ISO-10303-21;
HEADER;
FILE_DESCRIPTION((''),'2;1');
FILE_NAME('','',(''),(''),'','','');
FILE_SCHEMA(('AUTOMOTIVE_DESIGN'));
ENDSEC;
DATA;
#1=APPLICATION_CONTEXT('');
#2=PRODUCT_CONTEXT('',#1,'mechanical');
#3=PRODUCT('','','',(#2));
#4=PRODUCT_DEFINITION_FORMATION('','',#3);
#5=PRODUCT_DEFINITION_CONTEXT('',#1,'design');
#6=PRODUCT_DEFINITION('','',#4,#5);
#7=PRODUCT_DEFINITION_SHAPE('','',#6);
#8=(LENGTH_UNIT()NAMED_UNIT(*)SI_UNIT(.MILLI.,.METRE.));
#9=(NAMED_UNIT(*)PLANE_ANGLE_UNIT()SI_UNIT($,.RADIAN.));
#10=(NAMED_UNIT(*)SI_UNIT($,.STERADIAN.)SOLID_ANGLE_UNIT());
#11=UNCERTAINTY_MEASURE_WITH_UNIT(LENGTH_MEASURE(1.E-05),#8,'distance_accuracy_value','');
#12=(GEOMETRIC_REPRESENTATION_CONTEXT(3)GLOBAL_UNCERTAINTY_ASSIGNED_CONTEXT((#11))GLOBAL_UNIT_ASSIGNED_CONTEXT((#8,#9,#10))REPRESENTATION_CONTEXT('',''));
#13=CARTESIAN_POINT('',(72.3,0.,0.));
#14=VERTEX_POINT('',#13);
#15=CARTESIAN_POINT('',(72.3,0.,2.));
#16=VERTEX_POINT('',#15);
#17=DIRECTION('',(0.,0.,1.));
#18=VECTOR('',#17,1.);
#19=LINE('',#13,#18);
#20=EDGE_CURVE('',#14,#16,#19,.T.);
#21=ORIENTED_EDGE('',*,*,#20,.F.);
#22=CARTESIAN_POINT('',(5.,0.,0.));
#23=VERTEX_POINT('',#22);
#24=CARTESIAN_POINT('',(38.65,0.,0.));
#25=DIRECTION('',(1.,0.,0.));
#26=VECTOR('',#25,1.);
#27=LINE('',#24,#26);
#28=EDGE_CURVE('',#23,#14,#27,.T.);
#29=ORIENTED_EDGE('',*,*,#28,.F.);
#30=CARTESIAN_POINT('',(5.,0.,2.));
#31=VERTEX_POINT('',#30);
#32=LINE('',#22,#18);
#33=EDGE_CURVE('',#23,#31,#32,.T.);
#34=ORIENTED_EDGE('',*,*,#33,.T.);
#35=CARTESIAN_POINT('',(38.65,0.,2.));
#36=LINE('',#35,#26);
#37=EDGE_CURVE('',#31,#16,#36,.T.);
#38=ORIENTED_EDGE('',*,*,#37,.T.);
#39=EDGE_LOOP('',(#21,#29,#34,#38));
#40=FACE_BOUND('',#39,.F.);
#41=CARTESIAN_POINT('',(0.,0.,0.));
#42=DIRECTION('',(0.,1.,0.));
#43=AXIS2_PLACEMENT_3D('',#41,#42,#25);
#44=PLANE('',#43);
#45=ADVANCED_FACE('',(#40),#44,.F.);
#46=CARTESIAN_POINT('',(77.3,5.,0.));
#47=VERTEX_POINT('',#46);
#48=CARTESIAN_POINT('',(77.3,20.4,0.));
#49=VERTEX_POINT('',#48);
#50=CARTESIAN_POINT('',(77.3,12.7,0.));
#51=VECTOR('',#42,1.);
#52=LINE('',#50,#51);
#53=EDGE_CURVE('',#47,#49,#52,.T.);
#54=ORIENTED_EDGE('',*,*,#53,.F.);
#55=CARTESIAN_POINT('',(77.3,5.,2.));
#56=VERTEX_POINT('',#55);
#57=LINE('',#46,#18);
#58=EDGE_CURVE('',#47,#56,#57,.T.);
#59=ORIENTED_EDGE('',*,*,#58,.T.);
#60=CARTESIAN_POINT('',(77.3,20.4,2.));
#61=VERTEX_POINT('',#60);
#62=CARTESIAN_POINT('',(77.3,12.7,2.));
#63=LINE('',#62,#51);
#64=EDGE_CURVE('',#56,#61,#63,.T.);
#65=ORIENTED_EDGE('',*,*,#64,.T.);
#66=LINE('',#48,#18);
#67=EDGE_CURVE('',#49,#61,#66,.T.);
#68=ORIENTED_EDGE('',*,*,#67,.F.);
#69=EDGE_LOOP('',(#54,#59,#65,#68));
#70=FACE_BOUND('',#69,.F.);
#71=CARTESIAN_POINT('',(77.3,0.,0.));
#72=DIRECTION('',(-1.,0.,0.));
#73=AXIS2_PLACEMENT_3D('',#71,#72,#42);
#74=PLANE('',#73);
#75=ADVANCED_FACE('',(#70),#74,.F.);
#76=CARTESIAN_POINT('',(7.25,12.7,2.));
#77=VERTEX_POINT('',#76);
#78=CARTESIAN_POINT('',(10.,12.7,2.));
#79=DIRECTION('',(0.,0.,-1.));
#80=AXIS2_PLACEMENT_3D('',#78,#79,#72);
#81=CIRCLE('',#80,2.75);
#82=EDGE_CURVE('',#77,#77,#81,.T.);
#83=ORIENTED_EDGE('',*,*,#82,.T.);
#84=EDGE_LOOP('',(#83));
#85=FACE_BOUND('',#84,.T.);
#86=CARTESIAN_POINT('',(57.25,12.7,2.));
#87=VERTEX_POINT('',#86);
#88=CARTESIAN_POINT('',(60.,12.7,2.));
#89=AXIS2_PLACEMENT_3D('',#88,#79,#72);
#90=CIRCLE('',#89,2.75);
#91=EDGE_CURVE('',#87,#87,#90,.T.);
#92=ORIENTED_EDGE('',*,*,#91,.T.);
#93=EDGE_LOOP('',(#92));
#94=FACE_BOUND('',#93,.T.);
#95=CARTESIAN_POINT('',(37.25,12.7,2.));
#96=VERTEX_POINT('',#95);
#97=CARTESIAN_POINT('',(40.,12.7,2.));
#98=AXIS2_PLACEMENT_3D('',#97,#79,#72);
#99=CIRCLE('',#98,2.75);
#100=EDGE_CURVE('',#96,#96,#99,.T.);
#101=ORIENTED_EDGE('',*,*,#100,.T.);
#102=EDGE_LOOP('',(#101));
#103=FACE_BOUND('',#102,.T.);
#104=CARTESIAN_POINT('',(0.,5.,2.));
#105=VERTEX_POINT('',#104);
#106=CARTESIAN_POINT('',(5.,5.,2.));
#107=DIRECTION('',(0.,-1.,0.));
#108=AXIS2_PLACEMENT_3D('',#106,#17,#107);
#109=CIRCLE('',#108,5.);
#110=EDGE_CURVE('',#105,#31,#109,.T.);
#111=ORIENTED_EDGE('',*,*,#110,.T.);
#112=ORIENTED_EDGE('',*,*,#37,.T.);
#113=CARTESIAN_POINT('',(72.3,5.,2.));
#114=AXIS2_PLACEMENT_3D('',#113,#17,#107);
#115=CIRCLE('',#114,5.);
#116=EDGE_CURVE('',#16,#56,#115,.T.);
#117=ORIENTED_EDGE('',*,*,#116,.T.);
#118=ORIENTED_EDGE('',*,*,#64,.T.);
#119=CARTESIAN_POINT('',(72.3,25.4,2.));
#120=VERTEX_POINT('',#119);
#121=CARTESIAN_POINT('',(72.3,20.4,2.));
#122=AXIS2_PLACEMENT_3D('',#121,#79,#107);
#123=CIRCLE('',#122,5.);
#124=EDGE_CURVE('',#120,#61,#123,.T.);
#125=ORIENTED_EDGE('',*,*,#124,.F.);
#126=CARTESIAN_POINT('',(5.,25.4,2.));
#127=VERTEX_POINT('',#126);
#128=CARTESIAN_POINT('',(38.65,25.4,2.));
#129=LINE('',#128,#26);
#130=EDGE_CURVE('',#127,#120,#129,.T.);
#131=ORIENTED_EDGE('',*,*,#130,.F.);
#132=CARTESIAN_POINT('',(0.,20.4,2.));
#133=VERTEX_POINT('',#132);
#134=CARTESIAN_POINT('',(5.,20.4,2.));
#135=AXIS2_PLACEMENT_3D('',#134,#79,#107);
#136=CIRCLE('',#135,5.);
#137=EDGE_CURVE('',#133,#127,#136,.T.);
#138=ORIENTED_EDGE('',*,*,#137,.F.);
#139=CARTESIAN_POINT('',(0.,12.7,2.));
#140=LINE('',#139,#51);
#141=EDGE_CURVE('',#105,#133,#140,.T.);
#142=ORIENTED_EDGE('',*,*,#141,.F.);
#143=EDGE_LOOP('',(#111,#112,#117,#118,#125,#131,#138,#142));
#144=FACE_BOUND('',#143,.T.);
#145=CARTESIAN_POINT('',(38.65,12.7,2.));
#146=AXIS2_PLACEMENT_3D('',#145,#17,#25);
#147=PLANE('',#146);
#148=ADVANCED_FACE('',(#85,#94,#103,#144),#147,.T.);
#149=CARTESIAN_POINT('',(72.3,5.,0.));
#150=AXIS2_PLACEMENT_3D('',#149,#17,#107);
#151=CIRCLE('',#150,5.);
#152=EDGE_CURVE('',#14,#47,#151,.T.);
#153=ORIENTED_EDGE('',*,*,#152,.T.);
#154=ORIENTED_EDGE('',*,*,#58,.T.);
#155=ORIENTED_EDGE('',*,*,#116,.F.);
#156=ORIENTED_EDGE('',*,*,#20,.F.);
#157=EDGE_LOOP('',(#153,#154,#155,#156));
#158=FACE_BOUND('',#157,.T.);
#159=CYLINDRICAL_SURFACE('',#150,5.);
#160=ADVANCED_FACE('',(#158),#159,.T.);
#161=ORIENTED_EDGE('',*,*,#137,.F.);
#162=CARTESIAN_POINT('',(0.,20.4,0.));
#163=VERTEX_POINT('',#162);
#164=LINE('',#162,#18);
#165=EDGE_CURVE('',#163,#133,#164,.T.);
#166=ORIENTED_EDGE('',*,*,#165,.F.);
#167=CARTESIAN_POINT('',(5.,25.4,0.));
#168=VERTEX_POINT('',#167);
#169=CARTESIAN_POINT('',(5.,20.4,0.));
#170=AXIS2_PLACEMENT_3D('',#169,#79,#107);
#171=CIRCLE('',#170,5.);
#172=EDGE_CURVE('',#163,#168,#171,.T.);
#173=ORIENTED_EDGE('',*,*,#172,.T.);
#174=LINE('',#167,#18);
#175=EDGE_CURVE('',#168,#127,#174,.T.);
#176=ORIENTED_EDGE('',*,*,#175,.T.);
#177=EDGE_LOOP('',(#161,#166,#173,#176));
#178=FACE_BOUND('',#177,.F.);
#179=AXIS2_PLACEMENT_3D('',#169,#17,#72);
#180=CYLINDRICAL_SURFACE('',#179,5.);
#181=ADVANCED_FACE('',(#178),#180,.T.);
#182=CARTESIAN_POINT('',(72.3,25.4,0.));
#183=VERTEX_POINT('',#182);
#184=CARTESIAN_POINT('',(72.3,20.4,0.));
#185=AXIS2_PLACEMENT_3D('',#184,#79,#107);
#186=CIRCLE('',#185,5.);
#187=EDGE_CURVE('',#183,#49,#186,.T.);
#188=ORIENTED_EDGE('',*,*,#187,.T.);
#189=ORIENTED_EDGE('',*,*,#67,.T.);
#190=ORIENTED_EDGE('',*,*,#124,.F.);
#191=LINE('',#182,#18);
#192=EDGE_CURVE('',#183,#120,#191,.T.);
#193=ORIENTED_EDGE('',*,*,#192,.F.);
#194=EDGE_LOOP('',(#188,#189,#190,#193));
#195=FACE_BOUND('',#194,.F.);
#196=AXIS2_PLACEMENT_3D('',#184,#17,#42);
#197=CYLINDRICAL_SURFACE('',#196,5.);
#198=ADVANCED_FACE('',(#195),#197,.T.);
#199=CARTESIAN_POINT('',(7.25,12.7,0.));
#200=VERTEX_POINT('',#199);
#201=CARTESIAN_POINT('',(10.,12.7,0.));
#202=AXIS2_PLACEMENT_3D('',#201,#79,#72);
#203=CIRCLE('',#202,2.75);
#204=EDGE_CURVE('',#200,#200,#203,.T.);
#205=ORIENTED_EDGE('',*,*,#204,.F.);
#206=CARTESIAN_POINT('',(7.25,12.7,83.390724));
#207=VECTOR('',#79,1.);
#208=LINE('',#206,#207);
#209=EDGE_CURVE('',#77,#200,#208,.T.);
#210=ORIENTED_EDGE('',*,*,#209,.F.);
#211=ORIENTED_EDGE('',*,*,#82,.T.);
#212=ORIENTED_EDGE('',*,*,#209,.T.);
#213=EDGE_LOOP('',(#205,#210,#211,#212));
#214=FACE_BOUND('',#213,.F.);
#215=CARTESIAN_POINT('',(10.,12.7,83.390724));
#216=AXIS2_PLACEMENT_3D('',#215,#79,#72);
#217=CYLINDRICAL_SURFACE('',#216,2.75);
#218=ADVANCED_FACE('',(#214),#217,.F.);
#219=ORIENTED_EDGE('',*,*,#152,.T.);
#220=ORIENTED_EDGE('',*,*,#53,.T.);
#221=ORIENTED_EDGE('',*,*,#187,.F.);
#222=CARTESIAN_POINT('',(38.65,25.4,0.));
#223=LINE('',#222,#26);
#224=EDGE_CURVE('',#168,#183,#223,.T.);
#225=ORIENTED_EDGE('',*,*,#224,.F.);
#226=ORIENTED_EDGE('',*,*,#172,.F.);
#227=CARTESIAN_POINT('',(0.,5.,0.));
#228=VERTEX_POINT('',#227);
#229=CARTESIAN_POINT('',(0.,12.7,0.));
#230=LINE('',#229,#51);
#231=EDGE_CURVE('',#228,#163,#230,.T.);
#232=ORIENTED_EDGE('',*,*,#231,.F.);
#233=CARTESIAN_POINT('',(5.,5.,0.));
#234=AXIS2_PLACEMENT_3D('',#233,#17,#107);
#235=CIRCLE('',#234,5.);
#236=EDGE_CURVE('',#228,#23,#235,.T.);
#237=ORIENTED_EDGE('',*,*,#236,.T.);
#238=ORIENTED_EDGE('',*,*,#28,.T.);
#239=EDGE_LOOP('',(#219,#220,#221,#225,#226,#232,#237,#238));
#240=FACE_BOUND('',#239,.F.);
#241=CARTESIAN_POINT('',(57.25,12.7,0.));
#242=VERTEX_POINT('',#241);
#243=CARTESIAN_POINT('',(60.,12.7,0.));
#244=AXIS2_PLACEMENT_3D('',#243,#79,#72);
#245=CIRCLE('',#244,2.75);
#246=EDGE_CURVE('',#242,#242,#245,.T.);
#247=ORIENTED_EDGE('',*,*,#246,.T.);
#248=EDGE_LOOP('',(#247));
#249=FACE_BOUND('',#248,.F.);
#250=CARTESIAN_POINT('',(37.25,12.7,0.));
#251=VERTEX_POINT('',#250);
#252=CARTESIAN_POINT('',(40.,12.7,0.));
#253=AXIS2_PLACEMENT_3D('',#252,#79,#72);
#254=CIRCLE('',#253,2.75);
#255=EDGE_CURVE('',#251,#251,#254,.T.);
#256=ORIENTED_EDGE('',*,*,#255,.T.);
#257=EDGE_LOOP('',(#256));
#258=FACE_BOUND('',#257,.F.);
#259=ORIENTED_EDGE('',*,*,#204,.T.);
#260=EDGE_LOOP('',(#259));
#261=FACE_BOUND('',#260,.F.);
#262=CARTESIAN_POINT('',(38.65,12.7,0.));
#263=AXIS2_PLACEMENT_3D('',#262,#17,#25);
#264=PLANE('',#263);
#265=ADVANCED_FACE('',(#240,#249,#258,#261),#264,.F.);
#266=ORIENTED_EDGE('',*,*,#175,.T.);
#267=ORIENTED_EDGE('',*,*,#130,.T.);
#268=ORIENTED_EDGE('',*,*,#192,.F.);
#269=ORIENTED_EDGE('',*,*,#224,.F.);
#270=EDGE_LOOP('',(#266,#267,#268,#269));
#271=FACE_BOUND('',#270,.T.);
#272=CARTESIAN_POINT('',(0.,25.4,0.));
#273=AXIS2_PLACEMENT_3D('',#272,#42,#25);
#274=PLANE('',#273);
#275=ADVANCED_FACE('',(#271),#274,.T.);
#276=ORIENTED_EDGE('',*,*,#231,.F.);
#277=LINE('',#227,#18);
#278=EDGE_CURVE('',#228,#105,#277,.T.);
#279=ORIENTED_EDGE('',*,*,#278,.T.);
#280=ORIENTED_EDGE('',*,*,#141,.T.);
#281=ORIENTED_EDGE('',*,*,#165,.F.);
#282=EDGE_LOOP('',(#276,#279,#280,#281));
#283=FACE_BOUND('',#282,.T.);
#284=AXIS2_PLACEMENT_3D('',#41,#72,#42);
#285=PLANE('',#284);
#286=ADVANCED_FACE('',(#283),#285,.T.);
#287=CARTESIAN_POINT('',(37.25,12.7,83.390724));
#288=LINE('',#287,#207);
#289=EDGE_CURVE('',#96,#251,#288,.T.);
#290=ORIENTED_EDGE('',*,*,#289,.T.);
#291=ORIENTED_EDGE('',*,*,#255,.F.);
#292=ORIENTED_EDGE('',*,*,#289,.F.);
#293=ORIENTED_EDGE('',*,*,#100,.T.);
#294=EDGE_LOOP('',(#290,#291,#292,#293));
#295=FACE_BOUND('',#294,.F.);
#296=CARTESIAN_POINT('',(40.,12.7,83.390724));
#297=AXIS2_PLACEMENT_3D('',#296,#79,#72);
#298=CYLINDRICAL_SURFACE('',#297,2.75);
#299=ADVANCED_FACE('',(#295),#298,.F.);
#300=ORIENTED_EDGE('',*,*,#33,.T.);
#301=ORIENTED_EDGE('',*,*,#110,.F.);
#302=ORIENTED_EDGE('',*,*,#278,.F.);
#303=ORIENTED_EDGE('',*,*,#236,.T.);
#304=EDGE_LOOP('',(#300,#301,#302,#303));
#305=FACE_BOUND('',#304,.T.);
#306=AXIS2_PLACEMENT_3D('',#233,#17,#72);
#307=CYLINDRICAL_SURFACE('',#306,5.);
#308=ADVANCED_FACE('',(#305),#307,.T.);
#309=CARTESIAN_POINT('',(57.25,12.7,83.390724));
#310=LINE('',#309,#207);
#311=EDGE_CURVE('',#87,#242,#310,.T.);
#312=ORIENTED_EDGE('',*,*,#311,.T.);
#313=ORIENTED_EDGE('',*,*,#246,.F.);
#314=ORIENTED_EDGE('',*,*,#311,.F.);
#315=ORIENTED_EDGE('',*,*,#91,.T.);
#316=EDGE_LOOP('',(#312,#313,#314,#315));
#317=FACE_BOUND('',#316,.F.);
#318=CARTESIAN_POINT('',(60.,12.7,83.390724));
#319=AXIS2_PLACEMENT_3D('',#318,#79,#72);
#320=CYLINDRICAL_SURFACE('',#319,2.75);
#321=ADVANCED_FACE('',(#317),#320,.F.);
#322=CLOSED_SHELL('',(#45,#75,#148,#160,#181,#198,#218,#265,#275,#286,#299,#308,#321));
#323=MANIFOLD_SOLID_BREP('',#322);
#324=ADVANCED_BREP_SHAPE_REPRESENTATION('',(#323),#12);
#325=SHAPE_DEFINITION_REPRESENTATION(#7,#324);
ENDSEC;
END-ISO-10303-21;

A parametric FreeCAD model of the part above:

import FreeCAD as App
import Part
import Sketcher
Q = App.Units.Quantity


def edges_at(feature, points):
    """Names of the edges that pass closest to the given points."""
    edges = feature.Shape.Edges
    near = lambda p: min(range(len(edges)), key=lambda i: edges[i].distToShape(Part.Vertex(*p))[0])
    return sorted({f"Edge{near(p) + 1}" for p in points})


def add_polygon(sketch, points):
    """Adds a closed chain of lines whose ends are joined by coincident constraints."""
    first, n = sketch.GeometryCount, len(points)
    for a, b in zip(points, points[1:] + points[:1]):
        sketch.addGeometry(Part.LineSegment(App.Vector(*a, 0), App.Vector(*b, 0)), False)
    for i in range(n):
        sketch.addConstraint(Sketcher.Constraint("Coincident", first + i, 2, first + (i + 1) % n, 1))

doc = App.newDocument("Part")
body = doc.addObject("PartDesign::Body", "Body")

sketch1 = body.newObject("Sketcher::SketchObject", "Sketch")
sketch1.AttachmentSupport = (doc.getObject("XY_Plane"), [""])
sketch1.MapMode = "FlatFace"
add_polygon(sketch1, [(0, 25.4), (0, 0), (77.3, 0), (77.3, 25.4)])
sketch1.addConstraint(Sketcher.Constraint("Vertical", 0))
sketch1.addConstraint(Sketcher.Constraint("Horizontal", 1))
sketch1.addConstraint(Sketcher.Constraint("Vertical", 2))
sketch1.addConstraint(Sketcher.Constraint("Horizontal", 3))
sketch1.addConstraint(Sketcher.Constraint("Coincident", 0, 2, -1, 1))
sketch1.addConstraint(Sketcher.Constraint("DistanceX", 1, 1, 1, 2, Q("77.3 mm")))
sketch1.addConstraint(Sketcher.Constraint("DistanceY", 0, 2, 0, 1, Q("25.4 mm")))
pad1 = body.newObject("PartDesign::Pad", "Pad")
pad1.Profile = sketch1
pad1.Length = 2

sketch2 = body.newObject("Sketcher::SketchObject", "Sketch001")
sketch2.AttachmentSupport = (doc.getObject("XY_Plane"), [""])
sketch2.MapMode = "FlatFace"
sketch2.AttachmentOffset = App.Placement(App.Vector(0, 0, 2), App.Rotation())
sketch2.addGeometry(Part.Circle(App.Vector(10, 12.7, 0), App.Vector(0, 0, 1), 2.75), False)
sketch2.addGeometry(Part.Circle(App.Vector(40, 12.7, 0), App.Vector(0, 0, 1), 2.75), False)
sketch2.addGeometry(Part.Circle(App.Vector(60, 12.7, 0), App.Vector(0, 0, 1), 2.75), False)
sketch2.addConstraint(Sketcher.Constraint("Equal", 0, 1))
sketch2.addConstraint(Sketcher.Constraint("Equal", 1, 2))
sketch2.addConstraint(Sketcher.Constraint("Horizontal", 0, 3, 1, 3))
sketch2.addConstraint(Sketcher.Constraint("Horizontal", 1, 3, 2, 3))
sketch2.addConstraint(Sketcher.Constraint("Diameter", 0, Q("5.5 mm")))
sketch2.addConstraint(Sketcher.Constraint("DistanceX", -1, 1, 0, 3, Q("10 mm")))
sketch2.addConstraint(Sketcher.Constraint("DistanceX", -1, 1, 1, 3, Q("40 mm")))
sketch2.addConstraint(Sketcher.Constraint("DistanceX", -1, 1, 2, 3, Q("60 mm")))
sketch2.addConstraint(Sketcher.Constraint("DistanceY", -1, 1, 0, 3, Q("12.7 mm")))
doc.recompute()
hole = body.newObject("PartDesign::Hole", "Hole")
hole.Profile = sketch2
hole.ThreadType = "None"
hole.Diameter = 5.5
hole.DepthType = "ThroughAll"
doc.recompute()

fillet = body.newObject("PartDesign::Fillet", "Fillet")
fillet.Base = (hole, edges_at(hole, [
    (0, 25.4, 1),
    (0, 0, 1),
    (77.3, 0, 1),
    (77.3, 25.4, 1),
]))
fillet.Radius = 5

doc.recompute()
